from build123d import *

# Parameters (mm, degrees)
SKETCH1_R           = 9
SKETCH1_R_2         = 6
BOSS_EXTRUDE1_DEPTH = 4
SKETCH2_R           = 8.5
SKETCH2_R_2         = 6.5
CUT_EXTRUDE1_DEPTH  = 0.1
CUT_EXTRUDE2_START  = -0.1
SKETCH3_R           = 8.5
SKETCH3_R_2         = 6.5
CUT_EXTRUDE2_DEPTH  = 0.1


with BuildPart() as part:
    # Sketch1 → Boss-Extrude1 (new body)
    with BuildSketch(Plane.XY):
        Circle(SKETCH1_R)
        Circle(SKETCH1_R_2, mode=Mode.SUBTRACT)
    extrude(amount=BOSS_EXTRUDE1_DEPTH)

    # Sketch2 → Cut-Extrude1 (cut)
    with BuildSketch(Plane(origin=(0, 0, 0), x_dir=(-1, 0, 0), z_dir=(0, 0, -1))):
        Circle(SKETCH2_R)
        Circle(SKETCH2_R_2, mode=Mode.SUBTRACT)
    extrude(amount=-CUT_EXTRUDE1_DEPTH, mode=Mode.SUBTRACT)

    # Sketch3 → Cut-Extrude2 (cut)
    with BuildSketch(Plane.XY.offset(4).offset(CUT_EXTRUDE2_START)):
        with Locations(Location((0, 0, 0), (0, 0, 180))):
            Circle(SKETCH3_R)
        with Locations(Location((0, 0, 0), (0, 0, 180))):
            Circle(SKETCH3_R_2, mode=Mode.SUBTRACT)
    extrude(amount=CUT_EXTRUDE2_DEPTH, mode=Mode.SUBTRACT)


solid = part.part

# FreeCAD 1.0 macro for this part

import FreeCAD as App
import Part
import Sketcher

V = App.Vector

doc = App.newDocument("Part")
body = doc.addObject("PartDesign::Body", "Body")

# Sketch on XY plane
sketch1 = body.newObject("Sketcher::SketchObject", "Sketch")
sketch1.AttachmentSupport = (doc.getObject("XY_Plane"), [""])
sketch1.MapMode = "FlatFace"
sketch1.addGeometry(Part.Circle(V(0, 0, 0), V(0, 0, 1), 9), False)
sketch1.addGeometry(Part.Circle(V(0, 0, 0), V(0, 0, 1), 6), False)
sketch1.addConstraint(Sketcher.Constraint("Coincident", 0, 3, -1, 1))
sketch1.addConstraint(Sketcher.Constraint("Coincident", 1, 3, -1, 1))
sketch1.addConstraint(Sketcher.Constraint("Diameter", 0, 18.0))
sketch1.addConstraint(Sketcher.Constraint("Diameter", 1, 12.0))
pad1 = body.newObject("PartDesign::Pad", "Pad")
pad1.Profile = sketch1
pad1.Length = 4

# Sketch on XY plane
sketch2 = body.newObject("Sketcher::SketchObject", "Sketch001")
sketch2.AttachmentSupport = (doc.getObject("XY_Plane"), [""])
sketch2.MapMode = "FlatFace"
sketch2.addGeometry(Part.Circle(V(0, 0, 0), V(0, 0, 1), 8.5), False)
sketch2.addGeometry(Part.Circle(V(0, 0, 0), V(0, 0, 1), 6.5), False)
sketch2.addConstraint(Sketcher.Constraint("Coincident", 0, 3, -1, 1))
sketch2.addConstraint(Sketcher.Constraint("Coincident", 1, 3, -1, 1))
sketch2.addConstraint(Sketcher.Constraint("Diameter", 0, 17.0))
sketch2.addConstraint(Sketcher.Constraint("Diameter", 1, 13.0))
pocket1 = body.newObject("PartDesign::Pocket", "Pocket")
pocket1.Profile = sketch2
pocket1.Length = 0.1
pocket1.Reversed = True

# Sketch on XY plane
sketch3 = body.newObject("Sketcher::SketchObject", "Sketch002")
sketch3.AttachmentSupport = (doc.getObject("XY_Plane"), [""])
sketch3.MapMode = "FlatFace"
sketch3.AttachmentOffset = App.Placement(V(0, 0, 3.9), App.Rotation())
sketch3.addGeometry(Part.Circle(V(0, 0, 0), V(0, 0, 1), 8.5), False)
sketch3.addGeometry(Part.Circle(V(0, 0, 0), V(0, 0, 1), 6.5), False)
sketch3.addConstraint(Sketcher.Constraint("Coincident", 0, 3, -1, 1))
sketch3.addConstraint(Sketcher.Constraint("Coincident", 1, 3, -1, 1))
sketch3.addConstraint(Sketcher.Constraint("Diameter", 0, 17.0))
sketch3.addConstraint(Sketcher.Constraint("Diameter", 1, 13.0))
pocket2 = body.newObject("PartDesign::Pocket", "Pocket001")
pocket2.Profile = sketch3
pocket2.Length = 0.1
pocket2.Reversed = True

doc.recompute()
